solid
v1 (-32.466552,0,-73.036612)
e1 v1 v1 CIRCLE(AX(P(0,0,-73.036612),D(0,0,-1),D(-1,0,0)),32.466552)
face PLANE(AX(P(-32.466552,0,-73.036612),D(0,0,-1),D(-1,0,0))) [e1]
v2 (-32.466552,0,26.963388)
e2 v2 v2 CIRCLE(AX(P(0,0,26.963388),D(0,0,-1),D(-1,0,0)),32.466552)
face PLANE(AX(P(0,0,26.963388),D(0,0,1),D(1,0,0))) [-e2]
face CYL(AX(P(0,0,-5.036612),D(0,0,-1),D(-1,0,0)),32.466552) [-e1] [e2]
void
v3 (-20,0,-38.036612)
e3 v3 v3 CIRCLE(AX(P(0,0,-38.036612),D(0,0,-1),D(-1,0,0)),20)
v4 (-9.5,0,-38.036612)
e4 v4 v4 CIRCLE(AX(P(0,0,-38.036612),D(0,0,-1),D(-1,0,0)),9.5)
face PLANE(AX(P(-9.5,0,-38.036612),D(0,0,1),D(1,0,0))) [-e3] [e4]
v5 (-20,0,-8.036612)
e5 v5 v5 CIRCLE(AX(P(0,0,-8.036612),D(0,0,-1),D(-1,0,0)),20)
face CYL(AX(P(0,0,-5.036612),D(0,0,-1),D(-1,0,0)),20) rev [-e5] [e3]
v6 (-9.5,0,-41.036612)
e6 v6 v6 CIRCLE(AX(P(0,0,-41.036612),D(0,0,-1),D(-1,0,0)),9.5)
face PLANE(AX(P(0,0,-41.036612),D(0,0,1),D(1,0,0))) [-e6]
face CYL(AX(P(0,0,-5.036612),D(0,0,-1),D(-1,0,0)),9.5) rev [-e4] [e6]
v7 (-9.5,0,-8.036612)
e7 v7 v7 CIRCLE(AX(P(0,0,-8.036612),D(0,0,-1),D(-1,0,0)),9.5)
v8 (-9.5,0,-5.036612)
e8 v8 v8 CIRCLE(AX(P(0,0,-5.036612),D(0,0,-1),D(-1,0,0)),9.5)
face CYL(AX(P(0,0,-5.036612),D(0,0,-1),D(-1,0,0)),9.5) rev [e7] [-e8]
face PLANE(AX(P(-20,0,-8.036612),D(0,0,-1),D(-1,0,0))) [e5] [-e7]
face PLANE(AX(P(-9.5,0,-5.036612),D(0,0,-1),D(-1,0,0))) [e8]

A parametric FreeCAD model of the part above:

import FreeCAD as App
import Part
import Sketcher

V = App.Vector


def add_polygon(sketch, points):
    """Adds a closed chain of lines whose ends are joined by coincident constraints."""
    first, n = sketch.GeometryCount, len(points)
    for a, b in zip(points, points[1:] + points[:1]):
        sketch.addGeometry(Part.LineSegment(App.Vector(*a, 0), App.Vector(*b, 0)), False)
    for i in range(n):
        sketch.addConstraint(Sketcher.Constraint("Coincident", first + i, 2, first + (i + 1) % n, 1))

doc = App.newDocument("Part")
body = doc.addObject("PartDesign::Body", "Body")

# Sketch on XZ plane
sketch1 = doc.addObject("Sketcher::SketchObject", "Sketch")
body.addObject(sketch1)
sketch1.AttachmentSupport = (doc.XZ_Plane, [""])
sketch1.MapMode = "FlatFace"
add_polygon(sketch1, [(0, -41), (0, -73), (-32.5, -73), (-32.5, 27), (0, 27), (0, -5), (-9.5, -5), (-9.5, -8), (-20, -8), (-20, -38), (-9.5, -38), (-9.5, -41)])  # lines 0-11
sketch1.addConstraint(Sketcher.Constraint("Vertical", 0))
sketch1.addConstraint(Sketcher.Constraint("Horizontal", 1))
sketch1.addConstraint(Sketcher.Constraint("Vertical", 2))
sketch1.addConstraint(Sketcher.Constraint("Horizontal", 3))
sketch1.addConstraint(Sketcher.Constraint("Vertical", 4))
sketch1.addConstraint(Sketcher.Constraint("Horizontal", 5))
sketch1.addConstraint(Sketcher.Constraint("Vertical", 6))
sketch1.addConstraint(Sketcher.Constraint("Horizontal", 7))
sketch1.addConstraint(Sketcher.Constraint("Vertical", 8))
sketch1.addConstraint(Sketcher.Constraint("Horizontal", 9))
sketch1.addConstraint(Sketcher.Constraint("Vertical", 10))
sketch1.addConstraint(Sketcher.Constraint("Horizontal", 11))
sketch1.addConstraint(Sketcher.Constraint("PointOnObject", 0, 2, -2))
sketch1.addConstraint(Sketcher.Constraint("PointOnObject", 3, 2, -2))
sketch1.addConstraint(Sketcher.Constraint("Vertical", 6, 2, 9, 2))
sketch1.addConstraint(Sketcher.Constraint("Equal", 0, 4))
sketch1.addConstraint(Sketcher.Constraint("Equal", 6, 10))
sketch1.addConstraint(Sketcher.Constraint("DistanceY", 0, 2, 0, 1, 32.0))
sketch1.addConstraint(Sketcher.Constraint("DistanceY", 2, 1, 2, 2, 100.0))
sketch1.addConstraint(Sketcher.Constraint("DistanceY", 6, 2, 6, 1, 3.0))
sketch1.addConstraint(Sketcher.Constraint("DistanceX", 5, 2, 5, 1, 9.5))
sketch1.addConstraint(Sketcher.Constraint("DistanceX", 7, 2, 7, 1, 10.5))
sketch1.addConstraint(Sketcher.Constraint("DistanceX", 1, 2, 1, 1, 32.466552))
sketch1.addConstraint(Sketcher.Constraint("DistanceY", 0, 2, -1, 1, 73.036612))
revolution = doc.addObject("PartDesign::Revolution", "Revolution")
body.addObject(revolution)
revolution.Profile = sketch1
revolution.ReferenceAxis = (sketch1, ["V_Axis"])
revolution.Angle = 360

doc.recompute()
